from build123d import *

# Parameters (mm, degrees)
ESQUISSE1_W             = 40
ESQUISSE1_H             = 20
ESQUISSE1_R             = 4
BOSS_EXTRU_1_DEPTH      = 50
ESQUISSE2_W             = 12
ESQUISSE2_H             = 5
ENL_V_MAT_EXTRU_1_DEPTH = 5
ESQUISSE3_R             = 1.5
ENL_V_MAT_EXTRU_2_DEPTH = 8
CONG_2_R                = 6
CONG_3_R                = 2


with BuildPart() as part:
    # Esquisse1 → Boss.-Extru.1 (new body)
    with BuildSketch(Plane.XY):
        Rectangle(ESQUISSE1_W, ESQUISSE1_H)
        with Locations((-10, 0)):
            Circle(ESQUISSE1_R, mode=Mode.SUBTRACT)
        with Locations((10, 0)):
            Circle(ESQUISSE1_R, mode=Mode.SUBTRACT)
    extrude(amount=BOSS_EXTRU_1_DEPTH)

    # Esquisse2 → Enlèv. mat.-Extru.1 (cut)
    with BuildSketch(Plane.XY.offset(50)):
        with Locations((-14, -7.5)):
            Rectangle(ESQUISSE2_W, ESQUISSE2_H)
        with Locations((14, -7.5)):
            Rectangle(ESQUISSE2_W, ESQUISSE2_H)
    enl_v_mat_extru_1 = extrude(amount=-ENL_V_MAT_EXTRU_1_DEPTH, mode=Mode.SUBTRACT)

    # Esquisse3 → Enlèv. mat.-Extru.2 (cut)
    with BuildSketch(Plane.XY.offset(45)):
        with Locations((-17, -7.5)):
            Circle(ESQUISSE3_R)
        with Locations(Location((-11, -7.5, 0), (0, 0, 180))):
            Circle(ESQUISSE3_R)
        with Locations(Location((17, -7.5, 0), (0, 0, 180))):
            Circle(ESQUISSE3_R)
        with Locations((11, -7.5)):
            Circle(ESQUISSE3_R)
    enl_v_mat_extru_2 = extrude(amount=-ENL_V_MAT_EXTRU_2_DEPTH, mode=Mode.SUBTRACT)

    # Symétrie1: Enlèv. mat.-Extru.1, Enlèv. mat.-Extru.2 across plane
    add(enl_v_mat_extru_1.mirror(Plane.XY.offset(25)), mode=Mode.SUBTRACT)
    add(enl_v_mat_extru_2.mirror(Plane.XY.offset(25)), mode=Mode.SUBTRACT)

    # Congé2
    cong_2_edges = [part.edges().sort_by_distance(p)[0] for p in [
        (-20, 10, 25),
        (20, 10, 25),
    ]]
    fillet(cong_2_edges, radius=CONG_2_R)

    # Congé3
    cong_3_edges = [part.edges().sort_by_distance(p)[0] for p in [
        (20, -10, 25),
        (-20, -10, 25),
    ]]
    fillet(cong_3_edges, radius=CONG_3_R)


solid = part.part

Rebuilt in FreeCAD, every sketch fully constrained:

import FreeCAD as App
import Part
import Sketcher
from FreeCAD import Vector


def edges_at(feature, points):
    """Names of the edges that pass closest to the given points."""
    edges = feature.Shape.Edges
    near = lambda p: min(range(len(edges)), key=lambda i: edges[i].distToShape(Part.Vertex(*p))[0])
    return sorted({f"Edge{near(p) + 1}" for p in points})

doc = App.newDocument("Part")
params = doc.addObject("Spreadsheet::Sheet", "Params")
for row, (alias, value) in enumerate([
    ("sketch1_diameter", "8 mm"),
    ("sketch1_width", "40 mm"),
    ("sketch1_height", "20 mm"),
    ("pad1_length", "50 mm"),
    ("sketch2_width", "12 mm"),
    ("sketch2_height", "5 mm"),
    ("pocket1_length", "5 mm"),
    ("sketch3_diameter", "3 mm"),
    ("pocket2_length", "8 mm"),
    ("fillet_radius", "6 mm"),
    ("fillet2_radius", "2 mm"),
], start=1):
    params.set(f"A{row}", alias)
    params.set(f"B{row}", "=" + value)
    params.setAlias(f"B{row}", alias)

body = doc.addObject("PartDesign::Body", "Body")

# Sketch on XY plane
sketch1 = body.newObject("Sketcher::SketchObject", "Sketch")
sketch1.AttachmentSupport = (doc.getObject("XY_Plane"), [""])
sketch1.MapMode = "FlatFace"
sketch1.addGeometry(Part.LineSegment(Vector(-20, 10, 0), Vector(-20, -10, 0)), False)
sketch1.addGeometry(Part.LineSegment(Vector(-20, -10, 0), Vector(20, -10, 0)), False)
sketch1.addGeometry(Part.LineSegment(Vector(20, -10, 0), Vector(20, 10, 0)), False)
sketch1.addGeometry(Part.LineSegment(Vector(20, 10, 0), Vector(-20, 10, 0)), False)
sketch1.addGeometry(Part.Circle(Vector(-10, 0, 0), Vector(0, 0, 1), 4), False)
sketch1.addGeometry(Part.Circle(Vector(10, 0, 0), Vector(0, 0, 1), 4), False)
sketch1.addConstraint(Sketcher.Constraint("Coincident", 0, 2, 1, 1))
sketch1.addConstraint(Sketcher.Constraint("Coincident", 1, 2, 2, 1))
sketch1.addConstraint(Sketcher.Constraint("Coincident", 2, 2, 3, 1))
sketch1.addConstraint(Sketcher.Constraint("Coincident", 3, 2, 0, 1))
sketch1.addConstraint(Sketcher.Constraint("Vertical", 0))
sketch1.addConstraint(Sketcher.Constraint("Horizontal", 1))
sketch1.addConstraint(Sketcher.Constraint("Vertical", 2))
sketch1.addConstraint(Sketcher.Constraint("Horizontal", 3))
sketch1.addConstraint(Sketcher.Constraint("Equal", 4, 5))
sketch1.addConstraint(Sketcher.Constraint("Symmetric", 4, 3, 5, 3, -1, 1))
sketch1.addConstraint(Sketcher.Constraint("Symmetric", 0, 2, 2, 2, -1, 1))
sketch1.addConstraint(Sketcher.Constraint("PointOnObject", 4, 3, -1))
sketch1.addConstraint(Sketcher.Constraint("Diameter", 4, 8.0))
sketch1.addConstraint(Sketcher.Constraint("DistanceX", 1, 1, 1, 2, 40.0))
sketch1.addConstraint(Sketcher.Constraint("DistanceY", 0, 2, 0, 1, 20.0))
sketch1.addConstraint(Sketcher.Constraint("DistanceX", 4, 3, -1, 1, 10.0))
sketch1.setExpression("Constraints[12]", "Params.sketch1_diameter")
sketch1.setExpression("Constraints[13]", "Params.sketch1_width")
sketch1.setExpression("Constraints[14]", "Params.sketch1_height")
pad1 = body.newObject("PartDesign::Pad", "Pad")
pad1.Profile = sketch1
pad1.setExpression("Length", "Params.pad1_length")

# Sketch on XY plane
sketch2 = body.newObject("Sketcher::SketchObject", "Sketch001")
sketch2.AttachmentSupport = (doc.getObject("XY_Plane"), [""])
sketch2.MapMode = "FlatFace"
sketch2.AttachmentOffset = App.Placement(Vector(0, 0, 50), App.Rotation())
sketch2.addGeometry(Part.LineSegment(Vector(-20, -5, 0), Vector(-20, -10, 0)), False)
sketch2.addGeometry(Part.LineSegment(Vector(-20, -10, 0), Vector(-8, -10, 0)), False)
sketch2.addGeometry(Part.LineSegment(Vector(-8, -10, 0), Vector(-8, -5, 0)), False)
sketch2.addGeometry(Part.LineSegment(Vector(-8, -5, 0), Vector(-20, -5, 0)), False)
sketch2.addGeometry(Part.LineSegment(Vector(8, -5, 0), Vector(8, -10, 0)), False)
sketch2.addGeometry(Part.LineSegment(Vector(8, -10, 0), Vector(20, -10, 0)), False)
sketch2.addGeometry(Part.LineSegment(Vector(20, -10, 0), Vector(20, -5, 0)), False)
sketch2.addGeometry(Part.LineSegment(Vector(20, -5, 0), Vector(8, -5, 0)), False)
sketch2.addConstraint(Sketcher.Constraint("Coincident", 0, 2, 1, 1))
sketch2.addConstraint(Sketcher.Constraint("Coincident", 1, 2, 2, 1))
sketch2.addConstraint(Sketcher.Constraint("Coincident", 2, 2, 3, 1))
sketch2.addConstraint(Sketcher.Constraint("Coincident", 3, 2, 0, 1))
sketch2.addConstraint(Sketcher.Constraint("Coincident", 4, 2, 5, 1))
sketch2.addConstraint(Sketcher.Constraint("Coincident", 5, 2, 6, 1))
sketch2.addConstraint(Sketcher.Constraint("Coincident", 6, 2, 7, 1))
sketch2.addConstraint(Sketcher.Constraint("Coincident", 7, 2, 4, 1))
sketch2.addConstraint(Sketcher.Constraint("Vertical", 0))
sketch2.addConstraint(Sketcher.Constraint("Horizontal", 1))
sketch2.addConstraint(Sketcher.Constraint("Vertical", 2))
sketch2.addConstraint(Sketcher.Constraint("Horizontal", 3))
sketch2.addConstraint(Sketcher.Constraint("Vertical", 4))
sketch2.addConstraint(Sketcher.Constraint("Horizontal", 5))
sketch2.addConstraint(Sketcher.Constraint("Vertical", 6))
sketch2.addConstraint(Sketcher.Constraint("Horizontal", 7))
sketch2.addConstraint(Sketcher.Constraint("Symmetric", 1, 2, 4, 2, -2))
sketch2.addConstraint(Sketcher.Constraint("Symmetric", 3, 2, 6, 2, -2))
sketch2.addConstraint(Sketcher.Constraint("DistanceX", 1, 1, 1, 2, 12.0))
sketch2.addConstraint(Sketcher.Constraint("DistanceY", 0, 2, 0, 1, 5.0))
sketch2.addConstraint(Sketcher.Constraint("DistanceX", 0, 2, -1, 1, 20.0))
sketch2.addConstraint(Sketcher.Constraint("DistanceY", 0, 2, -1, 1, 10.0))
sketch2.setExpression("Constraints[18]", "Params.sketch2_width")
sketch2.setExpression("Constraints[19]", "Params.sketch2_height")
pocket1 = body.newObject("PartDesign::Pocket", "Pocket")
pocket1.Profile = sketch2
pocket1.setExpression("Length", "Params.pocket1_length")

# Sketch on XY plane
sketch3 = body.newObject("Sketcher::SketchObject", "Sketch002")
sketch3.AttachmentSupport = (doc.getObject("XY_Plane"), [""])
sketch3.MapMode = "FlatFace"
sketch3.AttachmentOffset = App.Placement(Vector(0, 0, 45), App.Rotation())
sketch3.addGeometry(Part.Circle(Vector(-17, -7.5, 0), Vector(0, 0, 1), 1.5), False)
sketch3.addGeometry(Part.Circle(Vector(-11, -7.5, 0), Vector(0, 0, 1), 1.5), False)
sketch3.addGeometry(Part.Circle(Vector(17, -7.5, 0), Vector(0, 0, 1), 1.5), False)
sketch3.addGeometry(Part.Circle(Vector(11, -7.5, 0), Vector(0, 0, 1), 1.5), False)
sketch3.addConstraint(Sketcher.Constraint("Equal", 0, 1))
sketch3.addConstraint(Sketcher.Constraint("Equal", 1, 2))
sketch3.addConstraint(Sketcher.Constraint("Equal", 2, 3))
sketch3.addConstraint(Sketcher.Constraint("Symmetric", 0, 3, 2, 3, -2))
sketch3.addConstraint(Sketcher.Constraint("Symmetric", 1, 3, 3, 3, -2))
sketch3.addConstraint(Sketcher.Constraint("Horizontal", 0, 3, 1, 3))
sketch3.addConstraint(Sketcher.Constraint("Diameter", 0, 3.0))
sketch3.addConstraint(Sketcher.Constraint("DistanceX", 0, 3, -1, 1, 17.0))
sketch3.addConstraint(Sketcher.Constraint("DistanceX", 1, 3, -1, 1, 11.0))
sketch3.addConstraint(Sketcher.Constraint("DistanceY", 0, 3, -1, 1, 7.5))
sketch3.setExpression("Constraints[6]", "Params.sketch3_diameter")
pocket2 = body.newObject("PartDesign::Pocket", "Pocket001")
pocket2.Profile = sketch3
pocket2.setExpression("Length", "Params.pocket2_length")
doc.recompute()

datumplane = body.newObject("PartDesign::Plane", "DatumPlane")
datumplane.AttachmentSupport = (doc.getObject("XY_Plane"), [""])
datumplane.MapMode = "FlatFace"
datumplane.AttachmentOffset = App.Placement(Vector(0, 0, 25), App.Rotation())
mirrored = body.newObject("PartDesign::Mirrored", "Mirrored")
mirrored.Originals = [pocket1, pocket2]
mirrored.MirrorPlane = (datumplane, [""])
body.Tip = mirrored
doc.recompute()

fillet = body.newObject("PartDesign::Fillet", "Fillet")
fillet.Base = (mirrored, edges_at(mirrored, [(-20, 10, 25), (20, 10, 25)]))
fillet.setExpression("Radius", "Params.fillet_radius")
doc.recompute()

fillet2 = body.newObject("PartDesign::Fillet", "Fillet001")
fillet2.Base = (fillet, edges_at(fillet, [(20, -10, 25), (-20, -10, 25)]))
fillet2.setExpression("Radius", "Params.fillet2_radius")

doc.recompute()
